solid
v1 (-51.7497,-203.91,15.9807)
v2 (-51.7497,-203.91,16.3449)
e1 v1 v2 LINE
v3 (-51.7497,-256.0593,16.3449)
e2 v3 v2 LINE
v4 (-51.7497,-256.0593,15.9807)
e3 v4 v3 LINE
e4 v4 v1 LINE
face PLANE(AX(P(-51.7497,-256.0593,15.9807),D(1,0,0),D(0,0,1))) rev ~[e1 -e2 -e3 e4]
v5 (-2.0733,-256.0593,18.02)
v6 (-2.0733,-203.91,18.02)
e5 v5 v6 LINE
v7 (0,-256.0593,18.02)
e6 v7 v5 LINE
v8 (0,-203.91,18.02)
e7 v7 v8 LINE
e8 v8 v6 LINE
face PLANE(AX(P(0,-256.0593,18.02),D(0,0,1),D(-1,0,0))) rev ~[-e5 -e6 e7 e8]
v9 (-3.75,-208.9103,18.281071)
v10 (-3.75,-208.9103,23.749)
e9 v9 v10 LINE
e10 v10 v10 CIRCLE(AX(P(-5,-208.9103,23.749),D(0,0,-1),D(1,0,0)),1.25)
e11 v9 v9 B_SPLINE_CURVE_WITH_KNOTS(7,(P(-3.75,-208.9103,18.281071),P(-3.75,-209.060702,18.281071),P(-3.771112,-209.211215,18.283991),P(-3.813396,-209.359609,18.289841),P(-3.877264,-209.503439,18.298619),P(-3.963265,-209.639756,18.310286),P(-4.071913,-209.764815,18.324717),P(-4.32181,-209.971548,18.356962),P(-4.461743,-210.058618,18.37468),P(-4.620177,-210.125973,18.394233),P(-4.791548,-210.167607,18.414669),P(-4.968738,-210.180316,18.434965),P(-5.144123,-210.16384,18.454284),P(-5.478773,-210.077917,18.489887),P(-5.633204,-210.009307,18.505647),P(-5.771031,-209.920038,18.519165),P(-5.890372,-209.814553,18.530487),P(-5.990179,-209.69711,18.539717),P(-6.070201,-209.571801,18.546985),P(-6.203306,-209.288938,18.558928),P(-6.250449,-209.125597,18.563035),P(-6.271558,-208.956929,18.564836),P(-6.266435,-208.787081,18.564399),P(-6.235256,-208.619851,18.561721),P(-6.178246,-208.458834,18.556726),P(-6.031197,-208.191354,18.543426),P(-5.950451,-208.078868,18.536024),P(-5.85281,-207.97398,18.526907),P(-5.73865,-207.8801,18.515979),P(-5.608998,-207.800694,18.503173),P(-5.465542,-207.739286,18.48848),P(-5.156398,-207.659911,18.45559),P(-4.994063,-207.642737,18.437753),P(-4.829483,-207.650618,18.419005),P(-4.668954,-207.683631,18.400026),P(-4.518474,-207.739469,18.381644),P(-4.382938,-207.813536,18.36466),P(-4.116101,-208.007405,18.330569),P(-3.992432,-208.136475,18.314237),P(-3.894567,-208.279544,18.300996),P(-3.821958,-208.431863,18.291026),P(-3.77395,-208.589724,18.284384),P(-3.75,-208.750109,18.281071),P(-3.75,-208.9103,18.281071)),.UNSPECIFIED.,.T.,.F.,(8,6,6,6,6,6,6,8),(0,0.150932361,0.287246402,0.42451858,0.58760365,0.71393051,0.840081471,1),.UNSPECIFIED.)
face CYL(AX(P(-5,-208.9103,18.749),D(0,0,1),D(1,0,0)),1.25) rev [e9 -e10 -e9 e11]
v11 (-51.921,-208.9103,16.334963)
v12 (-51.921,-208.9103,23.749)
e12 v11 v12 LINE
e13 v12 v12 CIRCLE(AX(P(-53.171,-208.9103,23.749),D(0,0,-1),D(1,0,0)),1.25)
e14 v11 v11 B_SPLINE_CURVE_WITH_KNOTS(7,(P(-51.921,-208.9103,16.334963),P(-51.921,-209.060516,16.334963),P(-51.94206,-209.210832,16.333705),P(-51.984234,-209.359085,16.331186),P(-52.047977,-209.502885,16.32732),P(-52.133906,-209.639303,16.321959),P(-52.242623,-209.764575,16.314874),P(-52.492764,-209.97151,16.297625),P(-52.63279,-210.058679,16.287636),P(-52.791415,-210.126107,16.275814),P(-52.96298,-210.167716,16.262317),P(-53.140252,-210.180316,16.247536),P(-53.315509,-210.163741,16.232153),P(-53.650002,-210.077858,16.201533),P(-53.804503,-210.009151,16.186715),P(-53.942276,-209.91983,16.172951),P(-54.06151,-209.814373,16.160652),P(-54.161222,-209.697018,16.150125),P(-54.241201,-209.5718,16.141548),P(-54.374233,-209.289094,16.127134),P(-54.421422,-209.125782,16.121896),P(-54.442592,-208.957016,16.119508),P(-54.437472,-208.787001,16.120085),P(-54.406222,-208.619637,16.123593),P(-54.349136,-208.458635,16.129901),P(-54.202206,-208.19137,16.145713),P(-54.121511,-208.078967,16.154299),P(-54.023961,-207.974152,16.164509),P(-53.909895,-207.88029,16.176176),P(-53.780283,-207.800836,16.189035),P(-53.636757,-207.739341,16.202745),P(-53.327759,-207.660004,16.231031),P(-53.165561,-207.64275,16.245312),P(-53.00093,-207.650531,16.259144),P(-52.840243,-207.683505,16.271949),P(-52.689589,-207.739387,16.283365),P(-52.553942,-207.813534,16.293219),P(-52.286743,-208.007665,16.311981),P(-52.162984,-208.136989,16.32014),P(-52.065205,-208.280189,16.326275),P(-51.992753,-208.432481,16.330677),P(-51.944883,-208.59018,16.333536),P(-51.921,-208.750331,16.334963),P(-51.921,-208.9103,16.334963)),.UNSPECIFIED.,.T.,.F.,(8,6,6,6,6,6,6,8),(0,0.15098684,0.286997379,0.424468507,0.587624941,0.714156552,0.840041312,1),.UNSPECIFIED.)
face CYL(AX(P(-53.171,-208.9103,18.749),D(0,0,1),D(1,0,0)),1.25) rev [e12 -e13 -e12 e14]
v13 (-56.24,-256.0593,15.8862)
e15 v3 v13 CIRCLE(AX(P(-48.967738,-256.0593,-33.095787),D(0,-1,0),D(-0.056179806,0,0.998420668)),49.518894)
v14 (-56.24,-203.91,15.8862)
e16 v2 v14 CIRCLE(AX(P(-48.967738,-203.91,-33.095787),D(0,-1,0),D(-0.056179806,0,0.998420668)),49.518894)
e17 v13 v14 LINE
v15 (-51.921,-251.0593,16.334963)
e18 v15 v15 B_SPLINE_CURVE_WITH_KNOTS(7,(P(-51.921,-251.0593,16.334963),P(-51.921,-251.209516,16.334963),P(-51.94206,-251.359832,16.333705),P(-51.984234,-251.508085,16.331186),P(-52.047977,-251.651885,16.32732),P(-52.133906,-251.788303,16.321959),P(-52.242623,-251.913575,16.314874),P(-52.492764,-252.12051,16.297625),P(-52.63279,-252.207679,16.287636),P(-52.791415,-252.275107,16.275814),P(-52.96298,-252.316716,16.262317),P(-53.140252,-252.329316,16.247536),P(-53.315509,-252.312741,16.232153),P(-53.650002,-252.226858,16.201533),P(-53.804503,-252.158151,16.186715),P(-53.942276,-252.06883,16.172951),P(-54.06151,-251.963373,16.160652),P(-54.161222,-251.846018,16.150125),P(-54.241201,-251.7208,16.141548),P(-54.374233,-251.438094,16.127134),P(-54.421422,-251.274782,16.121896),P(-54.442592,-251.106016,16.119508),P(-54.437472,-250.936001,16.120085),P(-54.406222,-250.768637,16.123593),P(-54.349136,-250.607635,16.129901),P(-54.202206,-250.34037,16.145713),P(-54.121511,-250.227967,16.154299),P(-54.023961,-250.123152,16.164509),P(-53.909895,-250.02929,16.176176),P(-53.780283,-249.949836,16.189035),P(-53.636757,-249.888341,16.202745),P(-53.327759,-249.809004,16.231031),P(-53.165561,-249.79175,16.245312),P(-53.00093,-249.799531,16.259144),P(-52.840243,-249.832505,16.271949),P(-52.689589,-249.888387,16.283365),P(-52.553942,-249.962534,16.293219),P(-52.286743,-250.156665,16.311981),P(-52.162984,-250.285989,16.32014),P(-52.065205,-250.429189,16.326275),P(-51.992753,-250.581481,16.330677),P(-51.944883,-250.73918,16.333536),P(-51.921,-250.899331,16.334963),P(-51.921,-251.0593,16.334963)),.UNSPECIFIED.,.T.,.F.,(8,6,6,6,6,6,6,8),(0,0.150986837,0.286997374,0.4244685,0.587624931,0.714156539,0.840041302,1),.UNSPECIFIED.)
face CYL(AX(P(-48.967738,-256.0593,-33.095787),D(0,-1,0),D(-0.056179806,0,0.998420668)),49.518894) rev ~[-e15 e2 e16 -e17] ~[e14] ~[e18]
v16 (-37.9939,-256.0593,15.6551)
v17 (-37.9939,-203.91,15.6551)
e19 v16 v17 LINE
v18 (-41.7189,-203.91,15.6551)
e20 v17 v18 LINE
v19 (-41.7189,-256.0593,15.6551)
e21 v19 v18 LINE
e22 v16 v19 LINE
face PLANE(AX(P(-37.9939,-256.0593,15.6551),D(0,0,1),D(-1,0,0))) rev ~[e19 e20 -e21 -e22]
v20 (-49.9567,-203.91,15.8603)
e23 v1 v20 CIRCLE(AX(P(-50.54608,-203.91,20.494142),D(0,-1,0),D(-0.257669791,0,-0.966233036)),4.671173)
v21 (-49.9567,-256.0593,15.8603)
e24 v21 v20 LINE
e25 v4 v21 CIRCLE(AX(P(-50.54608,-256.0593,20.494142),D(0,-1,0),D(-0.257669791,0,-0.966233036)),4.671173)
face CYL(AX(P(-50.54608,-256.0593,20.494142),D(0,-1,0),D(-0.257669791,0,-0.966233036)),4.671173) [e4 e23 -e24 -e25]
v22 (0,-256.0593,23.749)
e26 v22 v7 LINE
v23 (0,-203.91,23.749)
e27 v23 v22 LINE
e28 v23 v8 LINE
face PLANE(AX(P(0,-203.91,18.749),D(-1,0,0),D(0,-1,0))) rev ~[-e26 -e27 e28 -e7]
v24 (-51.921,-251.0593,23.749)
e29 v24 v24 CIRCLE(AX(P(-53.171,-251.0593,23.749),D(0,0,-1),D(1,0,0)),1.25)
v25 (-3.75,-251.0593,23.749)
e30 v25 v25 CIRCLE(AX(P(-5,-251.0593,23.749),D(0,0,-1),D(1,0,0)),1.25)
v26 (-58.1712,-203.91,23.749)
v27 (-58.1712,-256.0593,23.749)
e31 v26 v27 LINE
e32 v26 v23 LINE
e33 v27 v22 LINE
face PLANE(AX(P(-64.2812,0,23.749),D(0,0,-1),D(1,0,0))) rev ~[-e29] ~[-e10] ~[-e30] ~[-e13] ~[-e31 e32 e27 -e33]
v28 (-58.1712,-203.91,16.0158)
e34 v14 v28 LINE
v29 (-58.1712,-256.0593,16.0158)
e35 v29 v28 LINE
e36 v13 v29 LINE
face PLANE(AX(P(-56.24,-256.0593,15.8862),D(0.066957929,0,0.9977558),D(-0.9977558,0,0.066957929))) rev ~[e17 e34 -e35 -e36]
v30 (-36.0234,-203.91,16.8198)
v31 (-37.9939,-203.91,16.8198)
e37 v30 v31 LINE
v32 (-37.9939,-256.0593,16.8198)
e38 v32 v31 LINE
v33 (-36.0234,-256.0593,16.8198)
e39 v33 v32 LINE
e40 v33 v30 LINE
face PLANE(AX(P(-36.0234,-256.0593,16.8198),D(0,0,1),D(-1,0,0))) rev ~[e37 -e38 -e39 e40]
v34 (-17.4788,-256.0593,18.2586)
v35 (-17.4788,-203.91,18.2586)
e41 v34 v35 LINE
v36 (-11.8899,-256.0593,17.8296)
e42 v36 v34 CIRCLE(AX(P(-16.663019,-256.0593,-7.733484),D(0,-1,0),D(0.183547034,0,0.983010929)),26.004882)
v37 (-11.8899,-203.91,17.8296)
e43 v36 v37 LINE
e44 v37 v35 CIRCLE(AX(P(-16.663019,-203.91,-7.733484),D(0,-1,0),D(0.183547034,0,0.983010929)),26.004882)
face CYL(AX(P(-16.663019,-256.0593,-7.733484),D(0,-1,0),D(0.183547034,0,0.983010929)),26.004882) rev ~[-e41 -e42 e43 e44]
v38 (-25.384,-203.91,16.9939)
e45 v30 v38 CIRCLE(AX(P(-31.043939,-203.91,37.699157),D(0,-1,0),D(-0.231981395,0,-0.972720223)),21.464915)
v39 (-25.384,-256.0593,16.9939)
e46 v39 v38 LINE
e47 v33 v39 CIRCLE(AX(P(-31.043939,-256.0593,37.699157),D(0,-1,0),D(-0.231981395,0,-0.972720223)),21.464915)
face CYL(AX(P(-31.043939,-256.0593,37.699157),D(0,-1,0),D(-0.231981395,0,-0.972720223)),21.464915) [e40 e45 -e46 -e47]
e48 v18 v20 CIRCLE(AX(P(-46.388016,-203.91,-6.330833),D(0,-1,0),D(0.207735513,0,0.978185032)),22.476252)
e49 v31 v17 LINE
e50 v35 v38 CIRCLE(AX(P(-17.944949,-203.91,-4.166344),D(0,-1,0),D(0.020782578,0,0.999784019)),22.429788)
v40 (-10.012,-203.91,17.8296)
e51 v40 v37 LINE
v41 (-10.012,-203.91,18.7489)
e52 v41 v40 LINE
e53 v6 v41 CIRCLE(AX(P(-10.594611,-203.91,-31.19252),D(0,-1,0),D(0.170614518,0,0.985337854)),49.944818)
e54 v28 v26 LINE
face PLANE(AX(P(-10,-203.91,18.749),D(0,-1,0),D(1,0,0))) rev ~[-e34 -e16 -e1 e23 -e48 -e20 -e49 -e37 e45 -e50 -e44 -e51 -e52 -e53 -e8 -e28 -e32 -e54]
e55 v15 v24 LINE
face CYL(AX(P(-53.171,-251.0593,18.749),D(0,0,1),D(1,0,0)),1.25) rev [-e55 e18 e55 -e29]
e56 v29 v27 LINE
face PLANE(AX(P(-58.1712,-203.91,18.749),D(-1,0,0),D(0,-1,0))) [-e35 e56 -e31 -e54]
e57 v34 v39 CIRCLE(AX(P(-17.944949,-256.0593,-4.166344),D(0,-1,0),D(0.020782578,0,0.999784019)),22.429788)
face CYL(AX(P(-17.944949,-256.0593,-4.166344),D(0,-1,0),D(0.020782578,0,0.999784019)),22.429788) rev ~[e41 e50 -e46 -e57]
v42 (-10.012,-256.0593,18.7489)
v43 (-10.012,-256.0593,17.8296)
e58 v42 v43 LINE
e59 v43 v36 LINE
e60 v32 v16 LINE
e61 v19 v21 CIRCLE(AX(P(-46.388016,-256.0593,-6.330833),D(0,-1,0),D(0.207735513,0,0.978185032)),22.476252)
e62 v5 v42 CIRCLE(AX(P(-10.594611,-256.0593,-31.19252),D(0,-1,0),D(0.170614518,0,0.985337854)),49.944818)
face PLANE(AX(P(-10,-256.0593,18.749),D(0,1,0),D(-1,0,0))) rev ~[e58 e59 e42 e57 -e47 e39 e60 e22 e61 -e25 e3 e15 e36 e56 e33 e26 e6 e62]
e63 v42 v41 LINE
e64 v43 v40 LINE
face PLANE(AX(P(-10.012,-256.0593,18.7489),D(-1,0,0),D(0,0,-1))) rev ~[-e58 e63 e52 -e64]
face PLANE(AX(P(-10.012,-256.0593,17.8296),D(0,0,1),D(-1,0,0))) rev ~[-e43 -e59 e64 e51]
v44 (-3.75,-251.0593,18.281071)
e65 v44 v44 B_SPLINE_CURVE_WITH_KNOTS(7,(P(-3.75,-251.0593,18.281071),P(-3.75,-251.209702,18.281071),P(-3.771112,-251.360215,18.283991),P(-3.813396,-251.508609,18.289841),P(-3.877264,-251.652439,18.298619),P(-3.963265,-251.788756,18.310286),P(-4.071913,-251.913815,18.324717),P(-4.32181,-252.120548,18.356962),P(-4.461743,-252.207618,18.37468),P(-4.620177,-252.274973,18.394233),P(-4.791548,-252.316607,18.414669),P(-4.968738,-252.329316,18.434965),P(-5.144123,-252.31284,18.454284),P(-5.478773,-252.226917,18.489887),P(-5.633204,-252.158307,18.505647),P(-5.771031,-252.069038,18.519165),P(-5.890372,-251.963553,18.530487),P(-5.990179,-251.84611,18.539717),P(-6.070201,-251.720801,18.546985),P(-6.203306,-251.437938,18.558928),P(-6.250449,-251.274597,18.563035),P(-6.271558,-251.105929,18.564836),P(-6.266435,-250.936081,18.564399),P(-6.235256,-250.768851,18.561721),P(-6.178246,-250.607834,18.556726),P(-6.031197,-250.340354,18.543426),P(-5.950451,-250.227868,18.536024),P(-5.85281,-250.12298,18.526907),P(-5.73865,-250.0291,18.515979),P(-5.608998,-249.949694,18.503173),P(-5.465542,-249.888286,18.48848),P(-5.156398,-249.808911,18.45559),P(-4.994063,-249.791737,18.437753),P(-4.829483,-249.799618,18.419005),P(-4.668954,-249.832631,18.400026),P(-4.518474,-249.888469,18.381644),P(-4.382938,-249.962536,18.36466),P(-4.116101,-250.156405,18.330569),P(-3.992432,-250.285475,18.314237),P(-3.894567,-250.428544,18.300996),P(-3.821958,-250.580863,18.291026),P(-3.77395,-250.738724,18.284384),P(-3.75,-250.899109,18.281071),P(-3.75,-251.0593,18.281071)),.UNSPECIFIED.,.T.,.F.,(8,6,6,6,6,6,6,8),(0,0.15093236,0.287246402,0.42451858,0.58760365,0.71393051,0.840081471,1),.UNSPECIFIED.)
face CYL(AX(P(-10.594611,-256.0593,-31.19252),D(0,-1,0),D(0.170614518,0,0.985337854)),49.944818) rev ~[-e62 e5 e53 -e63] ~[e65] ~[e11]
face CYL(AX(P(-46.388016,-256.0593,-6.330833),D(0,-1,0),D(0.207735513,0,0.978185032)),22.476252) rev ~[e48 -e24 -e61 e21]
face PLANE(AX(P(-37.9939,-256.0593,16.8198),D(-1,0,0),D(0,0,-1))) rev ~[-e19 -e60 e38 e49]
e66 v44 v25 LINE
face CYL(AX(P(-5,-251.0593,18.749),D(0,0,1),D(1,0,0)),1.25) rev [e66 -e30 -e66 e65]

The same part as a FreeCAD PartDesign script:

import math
import FreeCAD as App
import Part
import Sketcher
Q = App.Units.Quantity


def add_polygon(sketch, points):
    """Adds a closed chain of lines whose ends are joined by coincident constraints."""
    first, n = sketch.GeometryCount, len(points)
    for a, b in zip(points, points[1:] + points[:1]):
        sketch.addGeometry(Part.LineSegment(App.Vector(*a, 0), App.Vector(*b, 0)), False)
    for i in range(n):
        sketch.addConstraint(Sketcher.Constraint("Coincident", first + i, 2, first + (i + 1) % n, 1))

doc = App.newDocument("Part")
params = doc.addObject("Spreadsheet::Sheet", "Params")
for row, (alias, value) in enumerate([
    ("sketch1_diameter", "2.5 mm"),
    ("pad1_length", "5 mm"),
    ("pad1_length2", "5 mm"),
], start=1):
    params.set(f"A{row}", alias)
    params.set(f"B{row}", "=" + value)
    params.setAlias(f"B{row}", alias)

body = doc.addObject("PartDesign::Body", "Body")

# Sketch on XY plane
sketch1 = body.newObject("Sketcher::SketchObject", "Sketch")
sketch1.AttachmentSupport = (doc.getObject("XY_Plane"), [""])
sketch1.MapMode = "FlatFace"
sketch1.AttachmentOffset = App.Placement(App.Vector(0, 0, 18.749), App.Rotation())
add_polygon(sketch1, [(0, -203.91), (0, -256.0593), (-58.1712, -256.0593), (-58.1712, -203.91)])  # lines 0-3
sketch1.addGeometry(Part.Circle(App.Vector(-5, -208.9103, 0), App.Vector(0, 0, 1), 1.25), False)  # 4
sketch1.addGeometry(Part.Circle(App.Vector(-53.171, -208.9103, 0), App.Vector(0, 0, 1), 1.25), False)  # 5
sketch1.addGeometry(Part.Circle(App.Vector(-5, -251.0593, 0), App.Vector(0, 0, 1), 1.25), False)  # 6
sketch1.addGeometry(Part.Circle(App.Vector(-53.171, -251.0593, 0), App.Vector(0, 0, 1), 1.25), False)  # 7
sketch1.addConstraint(Sketcher.Constraint("Vertical", 0))
sketch1.addConstraint(Sketcher.Constraint("Horizontal", 1))
sketch1.addConstraint(Sketcher.Constraint("Vertical", 2))
sketch1.addConstraint(Sketcher.Constraint("Horizontal", 3))
sketch1.addConstraint(Sketcher.Constraint("Equal", 4, 5))
sketch1.addConstraint(Sketcher.Constraint("Equal", 5, 6))
sketch1.addConstraint(Sketcher.Constraint("Equal", 6, 7))
sketch1.addConstraint(Sketcher.Constraint("PointOnObject", 0, 2, -2))
sketch1.addConstraint(Sketcher.Constraint("Horizontal", 4, 3, 5, 3))
sketch1.addConstraint(Sketcher.Constraint("Horizontal", 6, 3, 7, 3))
sketch1.addConstraint(Sketcher.Constraint("Vertical", 4, 3, 6, 3))
sketch1.addConstraint(Sketcher.Constraint("Vertical", 5, 3, 7, 3))
sketch1.addConstraint(Sketcher.Constraint("Diameter", 4, Q("2.5 mm")))
sketch1.addConstraint(Sketcher.Constraint("DistanceX", 4, 3, -1, 1, Q("5 mm")))
sketch1.addConstraint(Sketcher.Constraint("DistanceX", 5, 3, 4, 3, Q("48.171 mm")))
sketch1.addConstraint(Sketcher.Constraint("DistanceY", 6, 3, 4, 3, Q("42.149 mm")))
sketch1.addConstraint(Sketcher.Constraint("DistanceY", 0, 2, 6, 3, Q("5 mm")))
sketch1.addConstraint(Sketcher.Constraint("DistanceY", 2, 2, -1, 1, Q("203.91 mm")))
sketch1.addConstraint(Sketcher.Constraint("DistanceX", 1, 2, 1, 1, Q("58.1712 mm")))
sketch1.addConstraint(Sketcher.Constraint("DistanceY", 0, 2, 0, 1, Q("52.1493 mm")))
sketch1.setExpression("Constraints[16]", "Params.sketch1_diameter")
pad1 = body.newObject("PartDesign::Pad", "Pad")
pad1.Profile = sketch1
pad1.Type = "TwoLengths"
pad1.setExpression("Length", "Params.pad1_length")
pad1.setExpression("Length2", "Params.pad1_length2")
pad1.Reversed = True

# Sketch on XZ plane
sketch2 = body.newObject("Sketcher::SketchObject", "Sketch001")
sketch2.AttachmentSupport = (doc.getObject("XZ_Plane"), [""])
sketch2.MapMode = "FlatFace"
sketch2.AttachmentOffset = App.Placement(App.Vector(0, 0, 256.0593), App.Rotation())
sketch2.addGeometry(Part.LineSegment(App.Vector(0, 13.749, 0), App.Vector(0, 18.02, 0)), False)
sketch2.addGeometry(Part.LineSegment(App.Vector(0, 18.02, 0), App.Vector(-2.0733, 18.02, 0)), False)
sketch2.addGeometry(Part.ArcOfCircle(Part.Circle(App.Vector(-10.594611, -31.19252, 0), App.Vector(0, 0, 1), 49.944818), math.radians(80.17645), math.radians(89.331624)), False)
sketch2.addGeometry(Part.LineSegment(App.Vector(-10.012, 18.7489, 0), App.Vector(-10.012, 17.8296, 0)), False)
sketch2.addGeometry(Part.LineSegment(App.Vector(-10.012, 17.8296, 0), App.Vector(-11.8899, 17.8296, 0)), False)
sketch2.addGeometry(Part.ArcOfCircle(Part.Circle(App.Vector(-16.6631, -7.7341, 0), App.Vector(0, 0, 1), 26.005503), math.radians(79.423641), math.radians(91.79746)), False)
sketch2.addGeometry(Part.ArcOfCircle(Part.Circle(App.Vector(-17.944949, -4.166344, 0), App.Vector(0, 0, 1), 22.429788), math.radians(88.80916), math.radians(109.369528)), False)
sketch2.addGeometry(Part.ArcOfCircle(Part.Circle(App.Vector(-31.044, 37.6986, 0), App.Vector(0, 0, 1), 21.464359), math.radians(-103.41394), math.radians(-74.710724)), False)
sketch2.addGeometry(Part.LineSegment(App.Vector(-36.0234, 16.8198, 0), App.Vector(-37.9939, 16.8198, 0)), False)
sketch2.addGeometry(Part.LineSegment(App.Vector(-37.9939, 16.8198, 0), App.Vector(-37.9939, 15.6551, 0)), False)
sketch2.addGeometry(Part.LineSegment(App.Vector(-37.9939, 15.6551, 0), App.Vector(-41.7189, 15.6551, 0)), False)
sketch2.addGeometry(Part.ArcOfCircle(Part.Circle(App.Vector(-46.388016, -6.330833, 0), App.Vector(0, 0, 1), 22.476252), math.radians(78.01032), math.radians(99.135845)), False)
sketch2.addGeometry(Part.ArcOfCircle(Part.Circle(App.Vector(-50.54608, 20.494142, 0), App.Vector(0, 0, 1), 4.671173), math.radians(-104.931841), math.radians(-82.751451)), False)
sketch2.addGeometry(Part.LineSegment(App.Vector(-51.7497, 15.9807, 0), App.Vector(-51.7497, 16.3449, 0)), False)
sketch2.addGeometry(Part.ArcOfCircle(Part.Circle(App.Vector(-48.967738, -33.095787, 0), App.Vector(0, 0, 1), 49.518894), math.radians(93.220561), math.radians(98.444906)), False)
sketch2.addGeometry(Part.LineSegment(App.Vector(-56.24, 15.8862, 0), App.Vector(-58.1712, 16.0158, 0)), False)
sketch2.addGeometry(Part.LineSegment(App.Vector(-58.1712, 16.0158, 0), App.Vector(-58.1712, 13.749, 0)), False)
sketch2.addGeometry(Part.LineSegment(App.Vector(-58.1712, 13.749, 0), App.Vector(0, 13.749, 0)), False)
sketch2.addConstraint(Sketcher.Constraint("Coincident", 0, 2, 1, 1))
sketch2.addConstraint(Sketcher.Constraint("Coincident", 1, 2, 2, 1))
sketch2.addConstraint(Sketcher.Constraint("Coincident", 2, 2, 3, 1))
sketch2.addConstraint(Sketcher.Constraint("Coincident", 3, 2, 4, 1))
sketch2.addConstraint(Sketcher.Constraint("Coincident", 4, 2, 5, 1))
sketch2.addConstraint(Sketcher.Constraint("Coincident", 5, 2, 6, 1))
sketch2.addConstraint(Sketcher.Constraint("Coincident", 6, 2, 7, 2))
sketch2.addConstraint(Sketcher.Constraint("Coincident", 7, 1, 8, 1))
sketch2.addConstraint(Sketcher.Constraint("Coincident", 8, 2, 9, 1))
sketch2.addConstraint(Sketcher.Constraint("Coincident", 9, 2, 10, 1))
sketch2.addConstraint(Sketcher.Constraint("Coincident", 10, 2, 11, 1))
sketch2.addConstraint(Sketcher.Constraint("Coincident", 11, 2, 12, 2))
sketch2.addConstraint(Sketcher.Constraint("Coincident", 12, 1, 13, 1))
sketch2.addConstraint(Sketcher.Constraint("Coincident", 13, 2, 14, 1))
sketch2.addConstraint(Sketcher.Constraint("Coincident", 14, 2, 15, 1))
sketch2.addConstraint(Sketcher.Constraint("Coincident", 15, 2, 16, 1))
sketch2.addConstraint(Sketcher.Constraint("Coincident", 16, 2, 17, 1))
sketch2.addConstraint(Sketcher.Constraint("Coincident", 17, 2, 0, 1))
sketch2.addConstraint(Sketcher.Constraint("Vertical", 0))
sketch2.addConstraint(Sketcher.Constraint("Horizontal", 1))
sketch2.addConstraint(Sketcher.Constraint("Vertical", 3))
sketch2.addConstraint(Sketcher.Constraint("Horizontal", 4))
sketch2.addConstraint(Sketcher.Constraint("Horizontal", 8))
sketch2.addConstraint(Sketcher.Constraint("Vertical", 9))
sketch2.addConstraint(Sketcher.Constraint("Horizontal", 10))
sketch2.addConstraint(Sketcher.Constraint("Vertical", 13))
sketch2.addConstraint(Sketcher.Constraint("Vertical", 16))
sketch2.addConstraint(Sketcher.Constraint("Horizontal", 17))
sketch2.addConstraint(Sketcher.Constraint("PointOnObject", 0, 2, -2))
sketch2.addConstraint(Sketcher.Constraint("Radius", 14, Q("49.519 mm")))
sketch2.addConstraint(Sketcher.Constraint("DistanceY", 17, 2, 2, 2, Q("5 mm")))
sketch2.addConstraint(Sketcher.Constraint("Angle", 15, Q("176.1607 deg")))
sketch2.addConstraint(Sketcher.Constraint("Radius", 2, Q("49.9448 mm")))
sketch2.addConstraint(Sketcher.Constraint("Radius", 5, Q("26.0055 mm")))
sketch2.addConstraint(Sketcher.Constraint("Radius", 6, Q("22.4298 mm")))
sketch2.addConstraint(Sketcher.Constraint("Radius", 7, Q("21.4644 mm")))
sketch2.addConstraint(Sketcher.Constraint("Radius", 11, Q("22.4763 mm")))
sketch2.addConstraint(Sketcher.Constraint("Radius", 12, Q("4.6712 mm")))
sketch2.addConstraint(Sketcher.Constraint("DistanceX", 4, 2, 4, 1, Q("1.878 mm")))
sketch2.addConstraint(Sketcher.Constraint("DistanceX", 10, 2, 10, 1, Q("3.725 mm")))
sketch2.addConstraint(Sketcher.Constraint("DistanceY", 0, 1, 0, 2, Q("4.271 mm")))
sketch2.addConstraint(Sketcher.Constraint("DistanceY", -1, 1, 0, 2, Q("18.02 mm")))
sketch2.addConstraint(Sketcher.Constraint("DistanceX", 4, 2, -1, 1, Q("11.89 mm")))
sketch2.addConstraint(Sketcher.Constraint("DistanceX", 14, 2, -1, 1, Q("56.24 mm")))
sketch2.addConstraint(Sketcher.Constraint("DistanceY", 14, 3, 12, 3, Q("53.59 mm")))
sketch2.addConstraint(Sketcher.Constraint("DistanceX", 7, 3, 6, 2, Q("5.66 mm")))
sketch2.addConstraint(Sketcher.Constraint("DistanceX", 8, 2, 6, 2, Q("12.61 mm")))
sketch2.addConstraint(Sketcher.Constraint("DistanceX", 1, 2, 1, 1, Q("2.0733 mm")))
sketch2.addConstraint(Sketcher.Constraint("DistanceX", 8, 2, 8, 1, Q("1.9705 mm")))
sketch2.addConstraint(Sketcher.Constraint("DistanceX", 17, 1, 17, 2, Q("58.1712 mm")))
sketch2.addConstraint(Sketcher.Constraint("DistanceY", 3, 2, 3, 1, Q("0.9193 mm")))
sketch2.addConstraint(Sketcher.Constraint("DistanceY", 9, 2, 9, 1, Q("1.1647 mm")))
sketch2.addConstraint(Sketcher.Constraint("DistanceY", 13, 1, 13, 2, Q("0.3642 mm")))
sketch2.addConstraint(Sketcher.Constraint("DistanceY", 16, 2, 16, 1, Q("2.2668 mm")))
sketch2.addConstraint(Sketcher.Constraint("DistanceX", 5, 3, -1, 1, Q("16.663 mm")))
sketch2.addConstraint(Sketcher.Constraint("DistanceX", 6, 3, -1, 1, Q("17.945 mm")))
sketch2.addConstraint(Sketcher.Constraint("DistanceX", 7, 3, -1, 1, Q("31.044 mm")))
sketch2.addConstraint(Sketcher.Constraint("DistanceX", 11, 3, -1, 1, Q("46.388 mm")))
sketch2.addConstraint(Sketcher.Constraint("DistanceX", 12, 3, -1, 1, Q("50.546 mm")))
sketch2.addConstraint(Sketcher.Constraint("DistanceY", -1, 1, 6, 2, Q("16.994 mm")))
sketch2.addConstraint(Sketcher.Constraint("DistanceY", -1, 1, 13, 2, Q("16.345 mm")))
pocket1 = body.newObject("PartDesign::Pocket", "Pocket")
pocket1.Profile = sketch2
pocket1.Type = "ThroughAll"

doc.recompute()
